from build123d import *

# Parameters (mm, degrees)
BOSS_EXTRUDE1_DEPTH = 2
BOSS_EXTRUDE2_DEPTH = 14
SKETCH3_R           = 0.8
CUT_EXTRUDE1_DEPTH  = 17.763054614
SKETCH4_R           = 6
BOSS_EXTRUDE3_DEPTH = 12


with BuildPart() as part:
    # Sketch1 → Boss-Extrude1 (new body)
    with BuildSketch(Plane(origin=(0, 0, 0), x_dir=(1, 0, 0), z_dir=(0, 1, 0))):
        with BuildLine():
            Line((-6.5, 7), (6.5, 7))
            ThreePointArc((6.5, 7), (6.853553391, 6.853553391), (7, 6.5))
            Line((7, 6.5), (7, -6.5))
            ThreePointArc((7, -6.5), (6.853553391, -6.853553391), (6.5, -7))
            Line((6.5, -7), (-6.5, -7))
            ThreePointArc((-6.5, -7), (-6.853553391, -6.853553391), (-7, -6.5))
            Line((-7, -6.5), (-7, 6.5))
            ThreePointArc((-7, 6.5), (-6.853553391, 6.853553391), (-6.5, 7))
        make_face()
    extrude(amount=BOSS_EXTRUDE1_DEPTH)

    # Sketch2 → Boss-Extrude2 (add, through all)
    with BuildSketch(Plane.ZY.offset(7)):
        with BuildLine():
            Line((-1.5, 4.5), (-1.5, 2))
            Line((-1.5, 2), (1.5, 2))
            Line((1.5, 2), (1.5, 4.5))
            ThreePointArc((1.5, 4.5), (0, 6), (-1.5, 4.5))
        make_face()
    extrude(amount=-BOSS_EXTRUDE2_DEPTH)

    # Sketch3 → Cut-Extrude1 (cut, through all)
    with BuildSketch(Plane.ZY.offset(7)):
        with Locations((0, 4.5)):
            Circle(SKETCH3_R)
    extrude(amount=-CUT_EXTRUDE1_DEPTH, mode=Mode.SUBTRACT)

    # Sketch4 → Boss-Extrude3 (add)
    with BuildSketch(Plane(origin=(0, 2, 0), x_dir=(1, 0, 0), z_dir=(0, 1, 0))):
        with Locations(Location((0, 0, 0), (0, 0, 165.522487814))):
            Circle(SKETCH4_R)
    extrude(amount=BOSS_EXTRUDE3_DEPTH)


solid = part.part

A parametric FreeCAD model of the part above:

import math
import FreeCAD as App
import Part
import Sketcher

doc = App.newDocument("Part")
body = doc.addObject("PartDesign::Body", "Body")

# Sketch on XZ plane
sketch1 = body.newObject("Sketcher::SketchObject", "Sketch")
sketch1.AttachmentSupport = (doc.getObject("XZ_Plane"), [""])
sketch1.MapMode = "FlatFace"
sketch1.addGeometry([
    Part.LineSegment(App.Vector(6.5, -7, 0), App.Vector(-6.5, -7, 0)),  # 0
    Part.ArcOfCircle(Part.Circle(App.Vector(-6.5, -6.5, 0), App.Vector(0, 0, 1), 0.5), math.radians(180), math.radians(270)),  # 1
    Part.LineSegment(App.Vector(-7, -6.5, 0), App.Vector(-7, 6.5, 0)),  # 2
    Part.ArcOfCircle(Part.Circle(App.Vector(-6.5, 6.5, 0), App.Vector(0, 0, 1), 0.5), math.radians(90), math.radians(180)),  # 3
    Part.LineSegment(App.Vector(-6.5, 7, 0), App.Vector(6.5, 7, 0)),  # 4
    Part.ArcOfCircle(Part.Circle(App.Vector(6.5, 6.5, 0), App.Vector(0, 0, 1), 0.5), math.radians(0), math.radians(90)),  # 5
    Part.LineSegment(App.Vector(7, 6.5, 0), App.Vector(7, -6.5, 0)),  # 6
    Part.ArcOfCircle(Part.Circle(App.Vector(6.5, -6.5, 0), App.Vector(0, 0, 1), 0.5), math.radians(-90), math.radians(0)),  # 7
], False)
sketch1.addConstraint([
    Sketcher.Constraint("Tangent", 0, 2, 1, 2),
    Sketcher.Constraint("Tangent", 1, 1, 2, 1),
    Sketcher.Constraint("Tangent", 2, 2, 3, 2),
    Sketcher.Constraint("Tangent", 3, 1, 4, 1),
    Sketcher.Constraint("Tangent", 4, 2, 5, 2),
    Sketcher.Constraint("Tangent", 5, 1, 6, 1),
    Sketcher.Constraint("Tangent", 6, 2, 7, 2),
    Sketcher.Constraint("Tangent", 7, 1, 0, 1),
    Sketcher.Constraint("Horizontal", 0),
    Sketcher.Constraint("Vertical", 2),
    Sketcher.Constraint("Horizontal", 4),
    Sketcher.Constraint("Vertical", 6),
    Sketcher.Constraint("Equal", 1, 3),
    Sketcher.Constraint("Equal", 3, 5),
    Sketcher.Constraint("Equal", 5, 7),
    Sketcher.Constraint("Symmetric", 1, 3, 5, 3, -1, 1),
    Sketcher.Constraint("Equal", 4, 2),
    Sketcher.Constraint("Radius", 1, 0.5),
    Sketcher.Constraint("DistanceX", 0, 2, 0, 1, 13.0),
])
pad1 = body.newObject("PartDesign::Pad", "Pad")
pad1.Profile = sketch1
pad1.Length = 2
pad1.Reversed = True

# Sketch on YZ plane
sketch2 = body.newObject("Sketcher::SketchObject", "Sketch001")
sketch2.AttachmentSupport = (doc.getObject("YZ_Plane"), [""])
sketch2.MapMode = "FlatFace"
sketch2.AttachmentOffset = App.Placement(App.Vector(0, 0, -7), App.Rotation())
sketch2.addGeometry([
    Part.LineSegment(App.Vector(4.5, -1.5, 0), App.Vector(2, -1.5, 0)),
    Part.LineSegment(App.Vector(2, -1.5, 0), App.Vector(2, 1.5, 0)),
    Part.LineSegment(App.Vector(2, 1.5, 0), App.Vector(4.5, 1.5, 0)),
    Part.ArcOfCircle(Part.Circle(App.Vector(4.5, 0, 0), App.Vector(0, 0, 1), 1.5), math.radians(-90), math.radians(90)),
], False)
sketch2.addConstraint([
    Sketcher.Constraint("Coincident", 0, 2, 1, 1),
    Sketcher.Constraint("Coincident", 1, 2, 2, 1),
    Sketcher.Constraint("Tangent", 2, 2, 3, 2),
    Sketcher.Constraint("Tangent", 3, 1, 0, 1),
    Sketcher.Constraint("Horizontal", 0),
    Sketcher.Constraint("Vertical", 1),
    Sketcher.Constraint("Horizontal", 2),
    Sketcher.Constraint("PointOnObject", 3, 3, -1),
    Sketcher.Constraint("Radius", 3, 1.5),
    Sketcher.Constraint("DistanceX", 0, 2, 0, 1, 2.5),
    Sketcher.Constraint("DistanceX", -1, 1, 0, 2, 2.0),
])
pad2 = body.newObject("PartDesign::Pad", "Pad001")
pad2.Profile = sketch2
pad2.Length = 14

# Sketch on YZ plane
sketch3 = body.newObject("Sketcher::SketchObject", "Sketch002")
sketch3.AttachmentSupport = (doc.getObject("YZ_Plane"), [""])
sketch3.MapMode = "FlatFace"
sketch3.AttachmentOffset = App.Placement(App.Vector(0, 0, -7), App.Rotation())
sketch3.addGeometry(Part.Circle(App.Vector(4.5, 0, 0), App.Vector(0, 0, 1), 0.8), False)
sketch3.addConstraint([
    Sketcher.Constraint("PointOnObject", 0, 3, -1),
    Sketcher.Constraint("Diameter", 0, 1.6),
    Sketcher.Constraint("DistanceX", -1, 1, 0, 3, 4.5),
])
pocket1 = body.newObject("PartDesign::Pocket", "Pocket")
pocket1.Profile = sketch3
pocket1.Type = "ThroughAll"
pocket1.Reversed = True

# Sketch on XZ plane
sketch4 = body.newObject("Sketcher::SketchObject", "Sketch003")
sketch4.AttachmentSupport = (doc.getObject("XZ_Plane"), [""])
sketch4.MapMode = "FlatFace"
sketch4.AttachmentOffset = App.Placement(App.Vector(0, 0, -2), App.Rotation())
sketch4.addGeometry(Part.Circle(App.Vector(0, 0, 0), App.Vector(0, 0, 1), 6), False)
sketch4.addConstraint([
    Sketcher.Constraint("Coincident", 0, 3, -1, 1),
    Sketcher.Constraint("Diameter", 0, 12.0),
])
pad3 = body.newObject("PartDesign::Pad", "Pad002")
pad3.Profile = sketch4
pad3.Length = 12
pad3.Reversed = True

doc.recompute()
